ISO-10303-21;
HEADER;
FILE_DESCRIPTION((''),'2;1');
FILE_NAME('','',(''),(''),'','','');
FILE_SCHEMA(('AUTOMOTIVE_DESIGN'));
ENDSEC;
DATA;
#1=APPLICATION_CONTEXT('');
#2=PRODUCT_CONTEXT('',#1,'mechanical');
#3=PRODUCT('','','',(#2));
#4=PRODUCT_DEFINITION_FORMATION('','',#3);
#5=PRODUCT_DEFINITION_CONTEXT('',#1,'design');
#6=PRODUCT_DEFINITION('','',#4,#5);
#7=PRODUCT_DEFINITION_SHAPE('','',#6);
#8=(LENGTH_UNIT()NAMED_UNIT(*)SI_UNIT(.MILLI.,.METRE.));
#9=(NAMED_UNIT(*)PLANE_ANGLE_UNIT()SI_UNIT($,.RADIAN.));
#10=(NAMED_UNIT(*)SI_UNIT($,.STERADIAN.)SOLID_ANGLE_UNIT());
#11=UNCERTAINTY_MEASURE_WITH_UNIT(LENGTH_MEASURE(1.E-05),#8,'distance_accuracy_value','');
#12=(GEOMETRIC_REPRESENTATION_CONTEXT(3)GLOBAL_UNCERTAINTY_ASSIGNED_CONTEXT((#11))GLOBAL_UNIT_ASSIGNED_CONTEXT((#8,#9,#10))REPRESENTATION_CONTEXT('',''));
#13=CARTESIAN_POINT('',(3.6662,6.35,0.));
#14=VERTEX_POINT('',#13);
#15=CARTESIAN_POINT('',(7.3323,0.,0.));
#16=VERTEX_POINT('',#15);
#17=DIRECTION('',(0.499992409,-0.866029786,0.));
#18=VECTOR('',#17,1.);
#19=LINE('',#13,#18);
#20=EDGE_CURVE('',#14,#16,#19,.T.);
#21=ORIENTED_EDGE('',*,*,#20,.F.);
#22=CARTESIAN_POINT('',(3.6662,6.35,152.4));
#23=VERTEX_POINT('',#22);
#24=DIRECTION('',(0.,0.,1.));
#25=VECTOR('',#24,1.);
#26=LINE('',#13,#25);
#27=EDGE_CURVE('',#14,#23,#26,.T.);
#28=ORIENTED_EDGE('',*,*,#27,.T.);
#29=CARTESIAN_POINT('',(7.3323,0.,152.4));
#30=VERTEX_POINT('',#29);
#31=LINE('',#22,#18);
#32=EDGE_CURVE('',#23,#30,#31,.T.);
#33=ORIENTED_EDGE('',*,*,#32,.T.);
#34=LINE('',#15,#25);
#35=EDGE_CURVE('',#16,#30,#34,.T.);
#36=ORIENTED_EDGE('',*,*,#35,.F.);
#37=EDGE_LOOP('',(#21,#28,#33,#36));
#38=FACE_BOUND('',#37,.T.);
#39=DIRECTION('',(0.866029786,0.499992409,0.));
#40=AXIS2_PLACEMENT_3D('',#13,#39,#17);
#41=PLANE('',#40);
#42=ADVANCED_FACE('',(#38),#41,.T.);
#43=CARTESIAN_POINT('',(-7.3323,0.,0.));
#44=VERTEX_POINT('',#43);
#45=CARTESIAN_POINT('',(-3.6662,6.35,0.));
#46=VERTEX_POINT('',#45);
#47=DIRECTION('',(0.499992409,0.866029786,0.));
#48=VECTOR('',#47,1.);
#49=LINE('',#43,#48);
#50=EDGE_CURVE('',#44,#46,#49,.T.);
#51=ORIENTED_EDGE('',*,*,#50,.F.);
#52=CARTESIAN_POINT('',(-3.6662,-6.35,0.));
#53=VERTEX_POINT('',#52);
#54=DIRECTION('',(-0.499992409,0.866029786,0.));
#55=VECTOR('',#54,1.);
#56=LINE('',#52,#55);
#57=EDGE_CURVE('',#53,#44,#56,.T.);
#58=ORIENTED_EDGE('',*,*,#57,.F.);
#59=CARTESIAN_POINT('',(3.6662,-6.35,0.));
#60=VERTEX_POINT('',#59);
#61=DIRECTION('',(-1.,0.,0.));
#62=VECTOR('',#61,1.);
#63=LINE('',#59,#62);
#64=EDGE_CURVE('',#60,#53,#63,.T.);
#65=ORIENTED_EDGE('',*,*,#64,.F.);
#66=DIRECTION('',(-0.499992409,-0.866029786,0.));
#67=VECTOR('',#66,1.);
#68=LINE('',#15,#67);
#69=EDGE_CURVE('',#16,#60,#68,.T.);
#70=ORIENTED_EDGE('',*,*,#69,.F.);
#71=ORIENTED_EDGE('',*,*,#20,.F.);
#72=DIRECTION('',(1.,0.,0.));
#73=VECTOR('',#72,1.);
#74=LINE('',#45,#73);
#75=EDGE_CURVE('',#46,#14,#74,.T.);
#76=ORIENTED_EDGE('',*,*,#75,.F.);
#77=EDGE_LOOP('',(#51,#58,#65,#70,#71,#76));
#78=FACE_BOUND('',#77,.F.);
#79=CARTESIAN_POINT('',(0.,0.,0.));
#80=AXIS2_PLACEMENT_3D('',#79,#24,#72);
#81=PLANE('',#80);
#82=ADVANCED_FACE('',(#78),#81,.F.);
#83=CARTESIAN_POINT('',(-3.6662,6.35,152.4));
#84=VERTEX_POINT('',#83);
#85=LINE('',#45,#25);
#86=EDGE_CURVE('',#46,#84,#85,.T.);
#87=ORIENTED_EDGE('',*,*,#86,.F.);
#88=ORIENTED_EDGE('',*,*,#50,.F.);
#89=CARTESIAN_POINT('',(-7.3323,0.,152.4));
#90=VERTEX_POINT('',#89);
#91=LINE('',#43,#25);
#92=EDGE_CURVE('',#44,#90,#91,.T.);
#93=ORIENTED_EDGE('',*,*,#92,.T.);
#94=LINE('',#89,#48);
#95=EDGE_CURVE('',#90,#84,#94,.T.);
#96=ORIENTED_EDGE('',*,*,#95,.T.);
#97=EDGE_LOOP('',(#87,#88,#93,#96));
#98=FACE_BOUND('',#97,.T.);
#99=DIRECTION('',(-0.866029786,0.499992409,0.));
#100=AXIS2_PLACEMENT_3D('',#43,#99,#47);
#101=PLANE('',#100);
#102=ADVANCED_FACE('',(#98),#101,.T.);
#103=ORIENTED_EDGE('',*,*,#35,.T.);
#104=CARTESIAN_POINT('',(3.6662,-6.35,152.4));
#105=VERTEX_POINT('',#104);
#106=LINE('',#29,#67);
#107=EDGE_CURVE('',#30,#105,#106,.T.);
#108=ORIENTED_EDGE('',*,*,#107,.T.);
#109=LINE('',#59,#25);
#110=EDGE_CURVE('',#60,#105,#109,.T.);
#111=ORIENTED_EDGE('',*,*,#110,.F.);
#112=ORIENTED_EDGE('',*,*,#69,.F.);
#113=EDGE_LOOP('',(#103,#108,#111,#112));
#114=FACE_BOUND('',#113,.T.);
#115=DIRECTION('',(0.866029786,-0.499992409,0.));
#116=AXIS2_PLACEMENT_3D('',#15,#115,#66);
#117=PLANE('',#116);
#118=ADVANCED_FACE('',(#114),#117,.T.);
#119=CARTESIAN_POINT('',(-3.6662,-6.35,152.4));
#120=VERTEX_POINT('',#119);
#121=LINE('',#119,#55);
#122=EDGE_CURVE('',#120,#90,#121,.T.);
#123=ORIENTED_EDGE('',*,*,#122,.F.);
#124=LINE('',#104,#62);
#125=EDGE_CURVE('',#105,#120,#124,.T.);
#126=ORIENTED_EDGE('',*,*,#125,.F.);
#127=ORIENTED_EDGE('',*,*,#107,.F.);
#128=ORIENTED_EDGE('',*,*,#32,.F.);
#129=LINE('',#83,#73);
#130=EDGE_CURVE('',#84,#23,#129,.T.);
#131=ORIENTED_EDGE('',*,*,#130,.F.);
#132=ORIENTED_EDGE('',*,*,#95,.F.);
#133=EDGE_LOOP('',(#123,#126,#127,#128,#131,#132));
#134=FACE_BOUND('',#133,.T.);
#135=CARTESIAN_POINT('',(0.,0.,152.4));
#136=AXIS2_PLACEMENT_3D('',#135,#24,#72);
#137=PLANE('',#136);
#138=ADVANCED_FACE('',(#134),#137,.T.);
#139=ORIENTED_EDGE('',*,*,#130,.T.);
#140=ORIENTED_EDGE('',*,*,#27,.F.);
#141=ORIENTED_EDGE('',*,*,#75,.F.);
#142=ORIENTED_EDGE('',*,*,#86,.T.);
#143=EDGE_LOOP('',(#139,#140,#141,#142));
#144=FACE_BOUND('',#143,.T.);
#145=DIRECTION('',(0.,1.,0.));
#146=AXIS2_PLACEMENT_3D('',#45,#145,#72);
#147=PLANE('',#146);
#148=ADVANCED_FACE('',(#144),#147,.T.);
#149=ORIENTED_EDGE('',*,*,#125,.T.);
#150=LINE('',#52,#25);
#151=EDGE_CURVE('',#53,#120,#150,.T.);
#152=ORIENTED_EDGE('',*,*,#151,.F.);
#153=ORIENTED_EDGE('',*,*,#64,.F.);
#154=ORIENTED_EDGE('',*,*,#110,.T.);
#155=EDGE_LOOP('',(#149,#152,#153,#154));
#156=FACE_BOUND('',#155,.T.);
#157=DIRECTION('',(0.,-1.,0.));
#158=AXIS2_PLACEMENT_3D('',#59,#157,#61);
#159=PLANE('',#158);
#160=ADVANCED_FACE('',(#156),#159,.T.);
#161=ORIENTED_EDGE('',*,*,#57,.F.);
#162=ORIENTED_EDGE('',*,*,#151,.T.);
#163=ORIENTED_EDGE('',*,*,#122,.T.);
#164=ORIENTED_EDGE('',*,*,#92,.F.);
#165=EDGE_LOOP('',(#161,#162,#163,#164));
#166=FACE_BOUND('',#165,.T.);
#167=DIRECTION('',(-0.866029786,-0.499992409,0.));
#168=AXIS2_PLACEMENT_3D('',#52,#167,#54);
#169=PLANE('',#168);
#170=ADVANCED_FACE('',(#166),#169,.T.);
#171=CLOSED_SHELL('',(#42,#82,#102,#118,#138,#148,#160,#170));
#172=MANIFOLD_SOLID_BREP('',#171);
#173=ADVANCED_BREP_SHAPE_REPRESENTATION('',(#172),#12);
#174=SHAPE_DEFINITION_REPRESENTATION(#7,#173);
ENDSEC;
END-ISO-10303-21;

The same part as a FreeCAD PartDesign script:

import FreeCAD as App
import Part
import Sketcher
Q = App.Units.Quantity


def add_polygon(sketch, points):
    """Adds a closed chain of lines whose ends are joined by coincident constraints."""
    first, n = sketch.GeometryCount, len(points)
    for a, b in zip(points, points[1:] + points[:1]):
        sketch.addGeometry(Part.LineSegment(App.Vector(*a, 0), App.Vector(*b, 0)), False)
    for i in range(n):
        sketch.addConstraint(Sketcher.Constraint("Coincident", first + i, 2, first + (i + 1) % n, 1))

doc = App.newDocument("Part")
body = doc.addObject("PartDesign::Body", "Body")

# Sketch on XY plane
sketch1 = body.newObject("Sketcher::SketchObject", "Sketch")
sketch1.AttachmentSupport = (doc.getObject("XY_Plane"), [""])
sketch1.MapMode = "FlatFace"
add_polygon(sketch1, [(7.3323, 0), (3.6662, 6.35), (-3.6662, 6.35), (-7.3323, 0), (-3.6662, -6.35), (3.6662, -6.35)])  # lines 0-5
sketch1.addConstraint(Sketcher.Constraint("Horizontal", 1))
sketch1.addConstraint(Sketcher.Constraint("Horizontal", 4))
sketch1.addConstraint(Sketcher.Constraint("Symmetric", 0, 2, 3, 2, -1, 1))
sketch1.addConstraint(Sketcher.Constraint("Symmetric", 2, 2, 5, 2, -1, 1))
sketch1.addConstraint(Sketcher.Constraint("PointOnObject", 2, 2, -1))
sketch1.addConstraint(Sketcher.Constraint("Parallel", 2, 5))
sketch1.addConstraint(Sketcher.Constraint("Vertical", 1, 2, 3, 2))
sketch1.addConstraint(Sketcher.Constraint("DistanceY", 3, 2, 1, 2, Q("0.5 in")))
sketch1.addConstraint(Sketcher.Constraint("Angle", 0, Q("119.9995 deg")))
sketch1.addConstraint(Sketcher.Constraint("DistanceX", 2, 2, 0, 2, Q("0.433 in")))
pad1 = body.newObject("PartDesign::Pad", "Pad")
pad1.Profile = sketch1
pad1.Length = Q("6 in")

doc.recompute()
